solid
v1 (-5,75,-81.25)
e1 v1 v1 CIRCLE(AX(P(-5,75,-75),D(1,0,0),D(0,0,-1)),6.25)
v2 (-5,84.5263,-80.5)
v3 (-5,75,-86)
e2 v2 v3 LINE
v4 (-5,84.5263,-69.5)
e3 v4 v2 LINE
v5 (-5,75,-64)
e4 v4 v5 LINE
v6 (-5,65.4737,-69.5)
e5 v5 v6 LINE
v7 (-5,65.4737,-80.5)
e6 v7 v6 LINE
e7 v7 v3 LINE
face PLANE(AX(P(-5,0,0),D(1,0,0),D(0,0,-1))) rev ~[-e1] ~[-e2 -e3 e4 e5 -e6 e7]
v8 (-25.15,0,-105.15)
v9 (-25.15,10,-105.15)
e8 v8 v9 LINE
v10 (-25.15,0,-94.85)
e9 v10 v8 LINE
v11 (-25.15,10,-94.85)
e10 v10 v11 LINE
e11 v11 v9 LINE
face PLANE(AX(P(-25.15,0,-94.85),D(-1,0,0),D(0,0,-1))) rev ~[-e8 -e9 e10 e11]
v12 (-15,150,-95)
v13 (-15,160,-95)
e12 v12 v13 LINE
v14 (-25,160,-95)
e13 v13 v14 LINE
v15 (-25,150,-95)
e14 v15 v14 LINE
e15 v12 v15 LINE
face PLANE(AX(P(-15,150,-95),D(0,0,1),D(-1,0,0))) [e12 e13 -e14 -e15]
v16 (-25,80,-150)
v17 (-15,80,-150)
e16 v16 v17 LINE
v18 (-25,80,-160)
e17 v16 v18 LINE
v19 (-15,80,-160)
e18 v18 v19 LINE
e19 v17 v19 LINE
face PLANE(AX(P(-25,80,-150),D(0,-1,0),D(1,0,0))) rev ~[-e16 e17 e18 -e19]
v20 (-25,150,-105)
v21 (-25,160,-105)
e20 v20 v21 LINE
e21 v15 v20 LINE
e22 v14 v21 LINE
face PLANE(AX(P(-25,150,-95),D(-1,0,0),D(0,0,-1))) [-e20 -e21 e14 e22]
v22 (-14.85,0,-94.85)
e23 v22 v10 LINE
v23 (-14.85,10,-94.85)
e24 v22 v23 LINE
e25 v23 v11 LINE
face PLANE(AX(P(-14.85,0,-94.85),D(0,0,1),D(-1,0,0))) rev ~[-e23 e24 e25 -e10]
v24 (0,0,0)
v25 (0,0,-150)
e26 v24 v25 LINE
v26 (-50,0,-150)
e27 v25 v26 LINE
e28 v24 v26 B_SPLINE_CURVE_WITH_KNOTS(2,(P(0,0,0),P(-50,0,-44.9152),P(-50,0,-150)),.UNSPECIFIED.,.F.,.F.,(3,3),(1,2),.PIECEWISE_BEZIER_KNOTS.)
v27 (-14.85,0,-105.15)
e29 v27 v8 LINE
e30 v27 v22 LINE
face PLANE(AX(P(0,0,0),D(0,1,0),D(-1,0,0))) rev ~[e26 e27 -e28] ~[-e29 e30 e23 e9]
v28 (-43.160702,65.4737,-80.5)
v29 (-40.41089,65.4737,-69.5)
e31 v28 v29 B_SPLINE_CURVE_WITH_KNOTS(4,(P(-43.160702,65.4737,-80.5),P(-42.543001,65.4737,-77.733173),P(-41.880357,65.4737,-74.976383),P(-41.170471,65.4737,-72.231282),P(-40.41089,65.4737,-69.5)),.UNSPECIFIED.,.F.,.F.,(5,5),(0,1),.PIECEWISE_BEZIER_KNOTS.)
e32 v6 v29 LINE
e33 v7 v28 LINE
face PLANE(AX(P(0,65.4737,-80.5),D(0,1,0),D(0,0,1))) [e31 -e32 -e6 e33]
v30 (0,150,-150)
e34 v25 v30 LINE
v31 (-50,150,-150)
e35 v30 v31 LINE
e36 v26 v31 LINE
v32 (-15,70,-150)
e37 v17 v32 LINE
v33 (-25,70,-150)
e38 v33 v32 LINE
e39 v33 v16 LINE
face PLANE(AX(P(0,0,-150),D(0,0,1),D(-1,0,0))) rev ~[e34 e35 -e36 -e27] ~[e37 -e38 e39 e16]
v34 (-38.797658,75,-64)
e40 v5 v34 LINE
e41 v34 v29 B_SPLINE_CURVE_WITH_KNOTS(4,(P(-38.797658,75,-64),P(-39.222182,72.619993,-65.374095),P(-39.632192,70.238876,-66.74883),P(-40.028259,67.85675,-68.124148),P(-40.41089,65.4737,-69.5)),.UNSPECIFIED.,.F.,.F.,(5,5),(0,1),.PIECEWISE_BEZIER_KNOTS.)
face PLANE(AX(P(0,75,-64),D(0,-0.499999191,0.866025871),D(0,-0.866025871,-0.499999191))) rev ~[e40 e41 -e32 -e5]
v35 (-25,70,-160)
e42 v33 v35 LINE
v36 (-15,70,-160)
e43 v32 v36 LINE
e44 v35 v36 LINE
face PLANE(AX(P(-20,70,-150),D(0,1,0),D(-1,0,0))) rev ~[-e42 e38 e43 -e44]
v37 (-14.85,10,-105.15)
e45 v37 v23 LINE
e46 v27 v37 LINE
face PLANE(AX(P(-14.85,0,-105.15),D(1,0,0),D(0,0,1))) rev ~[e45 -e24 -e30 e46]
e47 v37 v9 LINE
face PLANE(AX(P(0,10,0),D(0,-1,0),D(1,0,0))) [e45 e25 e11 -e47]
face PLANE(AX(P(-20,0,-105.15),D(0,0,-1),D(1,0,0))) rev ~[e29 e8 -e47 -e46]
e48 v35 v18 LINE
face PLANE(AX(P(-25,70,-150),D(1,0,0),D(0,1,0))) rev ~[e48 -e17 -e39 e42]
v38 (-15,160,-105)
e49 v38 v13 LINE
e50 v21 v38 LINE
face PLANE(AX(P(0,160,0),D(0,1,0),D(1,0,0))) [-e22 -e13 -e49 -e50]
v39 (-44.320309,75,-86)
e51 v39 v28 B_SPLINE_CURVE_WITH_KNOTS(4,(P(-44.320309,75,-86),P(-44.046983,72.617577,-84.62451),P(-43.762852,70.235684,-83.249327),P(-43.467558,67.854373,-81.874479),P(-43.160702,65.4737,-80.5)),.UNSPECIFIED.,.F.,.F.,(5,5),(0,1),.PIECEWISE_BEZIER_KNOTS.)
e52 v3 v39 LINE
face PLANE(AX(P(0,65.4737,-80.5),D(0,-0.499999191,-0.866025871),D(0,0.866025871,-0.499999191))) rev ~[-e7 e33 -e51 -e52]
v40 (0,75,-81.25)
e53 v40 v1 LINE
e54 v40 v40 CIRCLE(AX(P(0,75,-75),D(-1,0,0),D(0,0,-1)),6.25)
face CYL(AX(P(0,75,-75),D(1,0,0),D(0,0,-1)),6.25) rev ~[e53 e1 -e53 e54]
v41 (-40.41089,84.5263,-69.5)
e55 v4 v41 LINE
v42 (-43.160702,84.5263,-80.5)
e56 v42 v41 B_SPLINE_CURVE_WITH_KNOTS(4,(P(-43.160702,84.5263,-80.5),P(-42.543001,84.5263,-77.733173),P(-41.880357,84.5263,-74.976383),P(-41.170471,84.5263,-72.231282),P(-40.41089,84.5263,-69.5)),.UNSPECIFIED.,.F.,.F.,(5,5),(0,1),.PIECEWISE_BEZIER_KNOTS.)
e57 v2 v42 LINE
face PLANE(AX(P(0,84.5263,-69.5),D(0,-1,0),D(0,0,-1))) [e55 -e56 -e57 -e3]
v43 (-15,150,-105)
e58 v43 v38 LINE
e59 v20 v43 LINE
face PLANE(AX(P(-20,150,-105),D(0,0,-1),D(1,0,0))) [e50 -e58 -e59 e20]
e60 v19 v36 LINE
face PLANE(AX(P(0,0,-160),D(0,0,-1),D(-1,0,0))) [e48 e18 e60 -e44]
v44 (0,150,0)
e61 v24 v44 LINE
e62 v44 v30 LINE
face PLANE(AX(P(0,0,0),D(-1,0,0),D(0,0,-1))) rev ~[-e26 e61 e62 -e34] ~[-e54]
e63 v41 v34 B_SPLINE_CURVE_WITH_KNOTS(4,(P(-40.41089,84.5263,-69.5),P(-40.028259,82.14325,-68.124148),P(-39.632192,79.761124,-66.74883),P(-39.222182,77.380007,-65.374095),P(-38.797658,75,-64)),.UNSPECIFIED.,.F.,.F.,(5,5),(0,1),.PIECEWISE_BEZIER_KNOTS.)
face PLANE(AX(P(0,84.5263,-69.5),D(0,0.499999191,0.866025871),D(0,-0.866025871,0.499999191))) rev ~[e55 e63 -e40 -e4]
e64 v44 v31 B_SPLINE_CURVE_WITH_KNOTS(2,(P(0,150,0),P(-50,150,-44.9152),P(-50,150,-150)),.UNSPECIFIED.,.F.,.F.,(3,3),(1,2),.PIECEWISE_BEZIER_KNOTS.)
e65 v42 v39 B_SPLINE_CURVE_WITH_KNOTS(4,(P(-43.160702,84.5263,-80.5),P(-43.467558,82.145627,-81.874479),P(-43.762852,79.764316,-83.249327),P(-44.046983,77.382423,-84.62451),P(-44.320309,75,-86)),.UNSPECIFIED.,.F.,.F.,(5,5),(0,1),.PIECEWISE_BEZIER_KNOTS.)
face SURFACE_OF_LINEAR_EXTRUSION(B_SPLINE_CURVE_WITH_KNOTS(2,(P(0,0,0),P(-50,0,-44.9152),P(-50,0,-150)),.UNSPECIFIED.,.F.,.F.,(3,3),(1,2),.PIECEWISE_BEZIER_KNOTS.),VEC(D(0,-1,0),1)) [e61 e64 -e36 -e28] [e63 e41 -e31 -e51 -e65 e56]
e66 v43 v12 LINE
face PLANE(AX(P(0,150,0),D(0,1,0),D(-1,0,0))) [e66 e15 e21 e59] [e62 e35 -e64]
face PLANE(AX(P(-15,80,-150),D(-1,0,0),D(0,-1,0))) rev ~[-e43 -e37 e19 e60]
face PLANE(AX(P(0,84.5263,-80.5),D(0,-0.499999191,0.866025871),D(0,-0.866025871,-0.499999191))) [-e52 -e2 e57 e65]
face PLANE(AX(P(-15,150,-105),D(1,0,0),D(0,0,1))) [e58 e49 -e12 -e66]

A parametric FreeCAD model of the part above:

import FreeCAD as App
import Part
import Sketcher
Q = App.Units.Quantity


def add_polygon(sketch, points):
    """Adds a closed chain of lines whose ends are joined by coincident constraints."""
    first, n = sketch.GeometryCount, len(points)
    for a, b in zip(points, points[1:] + points[:1]):
        sketch.addGeometry(Part.LineSegment(App.Vector(*a, 0), App.Vector(*b, 0)), False)
    for i in range(n):
        sketch.addConstraint(Sketcher.Constraint("Coincident", first + i, 2, first + (i + 1) % n, 1))

doc = App.newDocument("Part")
body = doc.addObject("PartDesign::Body", "Body")

# Sketch on XZ plane
sketch1 = doc.addObject("Sketcher::SketchObject", "Sketch")
body.addObject(sketch1)
sketch1.AttachmentSupport = (doc.XZ_Plane, [""])
sketch1.MapMode = "FlatFace"
sketch1.addGeometry(Part.BSplineCurve([App.Vector(0, 0, 0), App.Vector(-50, -44.9152, 0), App.Vector(-50, -150, 0)], [3, 3], [1, 2], False, 2, [1, 1, 1], False), False)
sketch1.addGeometry(Part.LineSegment(App.Vector(0, 0, 0), App.Vector(0, -150, 0)), False)
sketch1.addGeometry(Part.LineSegment(App.Vector(0, -150, 0), App.Vector(-50, -150, 0)), False)
sketch1.addConstraint(Sketcher.Constraint("Block", 0))
sketch1.addConstraint(Sketcher.Constraint("Coincident", 0, 1, 1, 1))
sketch1.addConstraint(Sketcher.Constraint("Coincident", 1, 2, 2, 1))
sketch1.addConstraint(Sketcher.Constraint("Coincident", 2, 2, 0, 2))
sketch1.addConstraint(Sketcher.Constraint("Vertical", 1))
sketch1.addConstraint(Sketcher.Constraint("Horizontal", 2))
pad1 = doc.addObject("PartDesign::Pad", "Pad")
body.addObject(pad1)
pad1.Profile = sketch1
pad1.Length = 150
pad1.Reversed = True

# Sketch on XY plane
sketch2 = doc.addObject("Sketcher::SketchObject", "Sketch001")
body.addObject(sketch2)
sketch2.AttachmentSupport = (doc.XY_Plane, [""])
sketch2.MapMode = "FlatFace"
sketch2.AttachmentOffset = App.Placement(App.Vector(0, 0, -150), App.Rotation())
add_polygon(sketch2, [(-25, 70), (-25, 80), (-15, 80), (-15, 70)])  # lines 0-3
sketch2.addConstraint(Sketcher.Constraint("Vertical", 0))
sketch2.addConstraint(Sketcher.Constraint("Horizontal", 1))
sketch2.addConstraint(Sketcher.Constraint("Vertical", 2))
sketch2.addConstraint(Sketcher.Constraint("Horizontal", 3))
sketch2.addConstraint(Sketcher.Constraint("Equal", 3, 0))
sketch2.addConstraint(Sketcher.Constraint("DistanceX", 1, 1, 1, 2, 10.0))
sketch2.addConstraint(Sketcher.Constraint("DistanceX", 0, 2, -1, 1, 25.0))
sketch2.addConstraint(Sketcher.Constraint("DistanceY", -1, 1, 0, 2, 80.0))
pad2 = doc.addObject("PartDesign::Pad", "Pad001")
body.addObject(pad2)
pad2.Profile = sketch2
pad2.Length = 10
pad2.Reversed = True

# Sketch on XZ plane
sketch3 = doc.addObject("Sketcher::SketchObject", "Sketch002")
body.addObject(sketch3)
sketch3.AttachmentSupport = (doc.XZ_Plane, [""])
sketch3.MapMode = "FlatFace"
add_polygon(sketch3, [(-25, -95), (-25, -105), (-15, -105), (-15, -95)])  # lines 0-3
sketch3.addConstraint(Sketcher.Constraint("Vertical", 0))
sketch3.addConstraint(Sketcher.Constraint("Horizontal", 1))
sketch3.addConstraint(Sketcher.Constraint("Vertical", 2))
sketch3.addConstraint(Sketcher.Constraint("Horizontal", 3))
sketch3.addConstraint(Sketcher.Constraint("Equal", 3, 0))
sketch3.addConstraint(Sketcher.Constraint("DistanceX", 1, 1, 1, 2, 10.3))
sketch3.addConstraint(Sketcher.Constraint("DistanceX", 0, 2, -1, 1, 25.15))
sketch3.addConstraint(Sketcher.Constraint("DistanceY", 0, 2, -1, 1, 105.15))
pocket1 = doc.addObject("PartDesign::Pocket", "Pocket")
body.addObject(pocket1)
pocket1.Profile = sketch3
pocket1.Length = 10

# Sketch on XZ plane
sketch4 = doc.addObject("Sketcher::SketchObject", "Sketch003")
body.addObject(sketch4)
sketch4.AttachmentSupport = (doc.XZ_Plane, [""])
sketch4.MapMode = "FlatFace"
sketch4.AttachmentOffset = App.Placement(App.Vector(0, 0, -150), App.Rotation())
add_polygon(sketch4, [(-25, -95), (-15, -95), (-15, -105), (-25, -105)])  # lines 0-3
sketch4.addConstraint(Sketcher.Constraint("Horizontal", 0))
sketch4.addConstraint(Sketcher.Constraint("Vertical", 1))
sketch4.addConstraint(Sketcher.Constraint("Horizontal", 2))
sketch4.addConstraint(Sketcher.Constraint("Vertical", 3))
sketch4.addConstraint(Sketcher.Constraint("Equal", 2, 1))
sketch4.addConstraint(Sketcher.Constraint("DistanceX", 0, 1, 0, 2, 10.0))
sketch4.addConstraint(Sketcher.Constraint("DistanceX", 0, 2, -1, 1, 15.0))
sketch4.addConstraint(Sketcher.Constraint("DistanceY", 0, 2, -1, 1, 95.0))
pad3 = doc.addObject("PartDesign::Pad", "Pad002")
body.addObject(pad3)
pad3.Profile = sketch4
pad3.Length = 10
pad3.Reversed = True

# Sketch on YZ plane
sketch5 = doc.addObject("Sketcher::SketchObject", "Sketch004")
body.addObject(sketch5)
sketch5.AttachmentSupport = (doc.YZ_Plane, [""])
sketch5.MapMode = "FlatFace"
add_polygon(sketch5, [(75, -86), (85, -80), (85, -70), (75, -64), (65, -70), (65, -80)])  # lines 0-5
sketch5.addConstraint(Sketcher.Constraint("Vertical", 1))
sketch5.addConstraint(Sketcher.Constraint("Vertical", 4))
sketch5.addConstraint(Sketcher.Constraint("Parallel", 0, 3))
sketch5.addConstraint(Sketcher.Constraint("Parallel", 2, 5))
sketch5.addConstraint(Sketcher.Constraint("Horizontal", 1, 2, 3, 2))
sketch5.addConstraint(Sketcher.Constraint("Horizontal", 0, 2, 4, 2))
sketch5.addConstraint(Sketcher.Constraint("Vertical", 2, 2, 5, 2))
sketch5.addConstraint(Sketcher.Constraint("DistanceY", 1, 1, 1, 2, 11.0))
sketch5.addConstraint(Sketcher.Constraint("Distance", 0, 11.0))
sketch5.addConstraint(Sketcher.Constraint("DistanceX", -1, 1, 2, 2, 75.0))
sketch5.addConstraint(Sketcher.Constraint("Angle", 0, Q("30 deg")))
sketch5.addConstraint(Sketcher.Constraint("DistanceY", 2, 2, -1, 1, 64.0))
pocket2 = doc.addObject("PartDesign::Pocket", "Pocket001")
body.addObject(pocket2)
pocket2.Profile = sketch5
pocket2.Length = 100

# Sketch on YZ plane
sketch6 = doc.addObject("Sketcher::SketchObject", "Sketch005")
body.addObject(sketch6)
sketch6.AttachmentSupport = (doc.YZ_Plane, [""])
sketch6.MapMode = "FlatFace"
add_polygon(sketch6, [(65, -80), (75, -86), (85, -80), (85, -70), (75, -64), (65, -70)])  # lines 0-5
sketch6.addGeometry(Part.Circle(App.Vector(75, -75, 0), App.Vector(0, 0, 1), 6), False)  # 6
sketch6.addConstraint(Sketcher.Constraint("Vertical", 2))
sketch6.addConstraint(Sketcher.Constraint("Vertical", 5))
sketch6.addConstraint(Sketcher.Constraint("Parallel", 0, 3))
sketch6.addConstraint(Sketcher.Constraint("Parallel", 1, 4))
sketch6.addConstraint(Sketcher.Constraint("Horizontal", 2, 2, 4, 2))
sketch6.addConstraint(Sketcher.Constraint("Horizontal", 1, 2, 5, 2))
sketch6.addConstraint(Sketcher.Constraint("Vertical", 6, 3, 0, 2))
sketch6.addConstraint(Sketcher.Constraint("Vertical", 0, 2, 3, 2))
sketch6.addConstraint(Sketcher.Constraint("Diameter", 6, 12.5))
sketch6.addConstraint(Sketcher.Constraint("DistanceY", 2, 1, 2, 2, 11.0))
sketch6.addConstraint(Sketcher.Constraint("Distance", 0, 11.0))
sketch6.addConstraint(Sketcher.Constraint("DistanceX", -1, 1, 6, 3, 75.0))
sketch6.addConstraint(Sketcher.Constraint("DistanceY", 6, 3, -1, 1, 75.0))
sketch6.addConstraint(Sketcher.Constraint("DistanceY", 0, 2, 6, 3, 11.0))
sketch6.addConstraint(Sketcher.Constraint("DistanceY", 6, 3, 3, 2, 11.0))
pad4 = doc.addObject("PartDesign::Pad", "Pad003")
body.addObject(pad4)
pad4.Profile = sketch6
pad4.Length = 5
pad4.Reversed = True

doc.recompute()
